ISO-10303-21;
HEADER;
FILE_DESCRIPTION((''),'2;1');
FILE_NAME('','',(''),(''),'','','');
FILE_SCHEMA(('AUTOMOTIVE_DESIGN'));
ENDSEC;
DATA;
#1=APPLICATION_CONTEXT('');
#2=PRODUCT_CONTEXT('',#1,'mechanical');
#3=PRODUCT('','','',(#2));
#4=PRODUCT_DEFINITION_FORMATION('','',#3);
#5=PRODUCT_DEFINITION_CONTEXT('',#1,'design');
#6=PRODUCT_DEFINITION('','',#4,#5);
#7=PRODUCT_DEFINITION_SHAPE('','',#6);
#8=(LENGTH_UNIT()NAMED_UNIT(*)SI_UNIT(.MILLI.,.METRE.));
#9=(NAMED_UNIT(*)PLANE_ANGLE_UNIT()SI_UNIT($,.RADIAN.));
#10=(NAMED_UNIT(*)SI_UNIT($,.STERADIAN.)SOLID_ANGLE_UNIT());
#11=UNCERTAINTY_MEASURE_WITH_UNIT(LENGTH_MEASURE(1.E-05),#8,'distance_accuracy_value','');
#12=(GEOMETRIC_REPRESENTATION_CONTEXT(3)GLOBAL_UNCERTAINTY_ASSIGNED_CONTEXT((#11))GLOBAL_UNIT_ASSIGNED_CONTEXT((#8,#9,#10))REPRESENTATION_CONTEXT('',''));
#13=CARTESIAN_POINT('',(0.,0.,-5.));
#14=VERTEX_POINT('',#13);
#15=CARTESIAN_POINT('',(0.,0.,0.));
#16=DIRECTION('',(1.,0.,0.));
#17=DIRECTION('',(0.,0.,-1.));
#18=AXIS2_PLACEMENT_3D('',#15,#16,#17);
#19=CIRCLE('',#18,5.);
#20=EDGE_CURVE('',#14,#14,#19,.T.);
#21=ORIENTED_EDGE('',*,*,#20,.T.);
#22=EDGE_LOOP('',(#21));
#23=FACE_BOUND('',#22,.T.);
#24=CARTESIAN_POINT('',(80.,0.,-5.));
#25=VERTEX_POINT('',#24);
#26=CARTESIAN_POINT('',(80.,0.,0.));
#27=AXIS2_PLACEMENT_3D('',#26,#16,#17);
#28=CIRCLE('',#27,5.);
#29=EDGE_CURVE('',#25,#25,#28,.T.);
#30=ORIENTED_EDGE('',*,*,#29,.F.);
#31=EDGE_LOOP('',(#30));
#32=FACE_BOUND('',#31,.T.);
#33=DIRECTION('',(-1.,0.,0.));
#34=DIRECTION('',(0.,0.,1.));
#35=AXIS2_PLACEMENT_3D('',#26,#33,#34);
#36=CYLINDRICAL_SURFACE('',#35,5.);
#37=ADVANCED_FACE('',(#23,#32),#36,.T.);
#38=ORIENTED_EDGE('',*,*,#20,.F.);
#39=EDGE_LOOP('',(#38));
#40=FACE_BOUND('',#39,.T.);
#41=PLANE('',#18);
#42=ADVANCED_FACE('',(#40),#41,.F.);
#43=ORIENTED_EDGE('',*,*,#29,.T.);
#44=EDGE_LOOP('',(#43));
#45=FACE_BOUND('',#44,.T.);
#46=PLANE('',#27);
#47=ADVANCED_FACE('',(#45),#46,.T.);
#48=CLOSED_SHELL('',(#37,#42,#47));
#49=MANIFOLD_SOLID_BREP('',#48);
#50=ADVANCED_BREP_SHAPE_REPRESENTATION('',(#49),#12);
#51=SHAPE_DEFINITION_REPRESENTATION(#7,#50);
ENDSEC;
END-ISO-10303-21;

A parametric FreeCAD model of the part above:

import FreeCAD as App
import Part
import Sketcher

V = App.Vector

doc = App.newDocument("Part")
body = doc.addObject("PartDesign::Body", "Body")

# Sketch on YZ plane
sketch1 = body.newObject("Sketcher::SketchObject", "Sketch")
sketch1.AttachmentSupport = (doc.getObject("YZ_Plane"), [""])
sketch1.MapMode = "FlatFace"
sketch1.addGeometry(Part.Circle(V(0, 0, 0), V(0, 0, 1), 5), False)
sketch1.addConstraint(Sketcher.Constraint("Coincident", 0, 3, -1, 1))
sketch1.addConstraint(Sketcher.Constraint("Diameter", 0, 10.0))
pad1 = body.newObject("PartDesign::Pad", "Pad")
pad1.Profile = sketch1
pad1.Length = 80

doc.recompute()
